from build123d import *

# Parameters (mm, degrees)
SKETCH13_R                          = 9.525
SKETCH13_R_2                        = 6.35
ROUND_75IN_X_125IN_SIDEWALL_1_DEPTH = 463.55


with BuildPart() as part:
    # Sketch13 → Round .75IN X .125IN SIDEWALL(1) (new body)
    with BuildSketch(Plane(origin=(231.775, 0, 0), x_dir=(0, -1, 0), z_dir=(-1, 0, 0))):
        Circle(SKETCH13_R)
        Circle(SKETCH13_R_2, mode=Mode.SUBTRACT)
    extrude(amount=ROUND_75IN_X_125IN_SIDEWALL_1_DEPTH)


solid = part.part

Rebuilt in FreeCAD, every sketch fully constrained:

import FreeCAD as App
import Part
import Sketcher

V = App.Vector
Q = App.Units.Quantity

doc = App.newDocument("Part")
body = doc.addObject("PartDesign::Body", "Body")

# Sketch on YZ plane
sketch1 = body.newObject("Sketcher::SketchObject", "Sketch")
sketch1.AttachmentSupport = (doc.getObject("YZ_Plane"), [""])
sketch1.MapMode = "FlatFace"
sketch1.AttachmentOffset = App.Placement(V(0, 0, 9.125 * 25.4), App.Rotation())
sketch1.addGeometry([
    Part.Circle(V(0, 0, 0), V(0, 0, 1), 9.525),
    Part.Circle(V(0, 0, 0), V(0, 0, 1), 6.35),
], False)
sketch1.addConstraint([
    Sketcher.Constraint("Coincident", 0, 3, -1, 1),
    Sketcher.Constraint("Coincident", 1, 3, -1, 1),
    Sketcher.Constraint("Diameter", 1, Q("0.5 in")),
    Sketcher.Constraint("Diameter", 0, Q("0.75 in")),
])
pad1 = body.newObject("PartDesign::Pad", "Pad")
pad1.Profile = sketch1
pad1.Length = Q("18.25 in")
pad1.Reversed = True

doc.recompute()
